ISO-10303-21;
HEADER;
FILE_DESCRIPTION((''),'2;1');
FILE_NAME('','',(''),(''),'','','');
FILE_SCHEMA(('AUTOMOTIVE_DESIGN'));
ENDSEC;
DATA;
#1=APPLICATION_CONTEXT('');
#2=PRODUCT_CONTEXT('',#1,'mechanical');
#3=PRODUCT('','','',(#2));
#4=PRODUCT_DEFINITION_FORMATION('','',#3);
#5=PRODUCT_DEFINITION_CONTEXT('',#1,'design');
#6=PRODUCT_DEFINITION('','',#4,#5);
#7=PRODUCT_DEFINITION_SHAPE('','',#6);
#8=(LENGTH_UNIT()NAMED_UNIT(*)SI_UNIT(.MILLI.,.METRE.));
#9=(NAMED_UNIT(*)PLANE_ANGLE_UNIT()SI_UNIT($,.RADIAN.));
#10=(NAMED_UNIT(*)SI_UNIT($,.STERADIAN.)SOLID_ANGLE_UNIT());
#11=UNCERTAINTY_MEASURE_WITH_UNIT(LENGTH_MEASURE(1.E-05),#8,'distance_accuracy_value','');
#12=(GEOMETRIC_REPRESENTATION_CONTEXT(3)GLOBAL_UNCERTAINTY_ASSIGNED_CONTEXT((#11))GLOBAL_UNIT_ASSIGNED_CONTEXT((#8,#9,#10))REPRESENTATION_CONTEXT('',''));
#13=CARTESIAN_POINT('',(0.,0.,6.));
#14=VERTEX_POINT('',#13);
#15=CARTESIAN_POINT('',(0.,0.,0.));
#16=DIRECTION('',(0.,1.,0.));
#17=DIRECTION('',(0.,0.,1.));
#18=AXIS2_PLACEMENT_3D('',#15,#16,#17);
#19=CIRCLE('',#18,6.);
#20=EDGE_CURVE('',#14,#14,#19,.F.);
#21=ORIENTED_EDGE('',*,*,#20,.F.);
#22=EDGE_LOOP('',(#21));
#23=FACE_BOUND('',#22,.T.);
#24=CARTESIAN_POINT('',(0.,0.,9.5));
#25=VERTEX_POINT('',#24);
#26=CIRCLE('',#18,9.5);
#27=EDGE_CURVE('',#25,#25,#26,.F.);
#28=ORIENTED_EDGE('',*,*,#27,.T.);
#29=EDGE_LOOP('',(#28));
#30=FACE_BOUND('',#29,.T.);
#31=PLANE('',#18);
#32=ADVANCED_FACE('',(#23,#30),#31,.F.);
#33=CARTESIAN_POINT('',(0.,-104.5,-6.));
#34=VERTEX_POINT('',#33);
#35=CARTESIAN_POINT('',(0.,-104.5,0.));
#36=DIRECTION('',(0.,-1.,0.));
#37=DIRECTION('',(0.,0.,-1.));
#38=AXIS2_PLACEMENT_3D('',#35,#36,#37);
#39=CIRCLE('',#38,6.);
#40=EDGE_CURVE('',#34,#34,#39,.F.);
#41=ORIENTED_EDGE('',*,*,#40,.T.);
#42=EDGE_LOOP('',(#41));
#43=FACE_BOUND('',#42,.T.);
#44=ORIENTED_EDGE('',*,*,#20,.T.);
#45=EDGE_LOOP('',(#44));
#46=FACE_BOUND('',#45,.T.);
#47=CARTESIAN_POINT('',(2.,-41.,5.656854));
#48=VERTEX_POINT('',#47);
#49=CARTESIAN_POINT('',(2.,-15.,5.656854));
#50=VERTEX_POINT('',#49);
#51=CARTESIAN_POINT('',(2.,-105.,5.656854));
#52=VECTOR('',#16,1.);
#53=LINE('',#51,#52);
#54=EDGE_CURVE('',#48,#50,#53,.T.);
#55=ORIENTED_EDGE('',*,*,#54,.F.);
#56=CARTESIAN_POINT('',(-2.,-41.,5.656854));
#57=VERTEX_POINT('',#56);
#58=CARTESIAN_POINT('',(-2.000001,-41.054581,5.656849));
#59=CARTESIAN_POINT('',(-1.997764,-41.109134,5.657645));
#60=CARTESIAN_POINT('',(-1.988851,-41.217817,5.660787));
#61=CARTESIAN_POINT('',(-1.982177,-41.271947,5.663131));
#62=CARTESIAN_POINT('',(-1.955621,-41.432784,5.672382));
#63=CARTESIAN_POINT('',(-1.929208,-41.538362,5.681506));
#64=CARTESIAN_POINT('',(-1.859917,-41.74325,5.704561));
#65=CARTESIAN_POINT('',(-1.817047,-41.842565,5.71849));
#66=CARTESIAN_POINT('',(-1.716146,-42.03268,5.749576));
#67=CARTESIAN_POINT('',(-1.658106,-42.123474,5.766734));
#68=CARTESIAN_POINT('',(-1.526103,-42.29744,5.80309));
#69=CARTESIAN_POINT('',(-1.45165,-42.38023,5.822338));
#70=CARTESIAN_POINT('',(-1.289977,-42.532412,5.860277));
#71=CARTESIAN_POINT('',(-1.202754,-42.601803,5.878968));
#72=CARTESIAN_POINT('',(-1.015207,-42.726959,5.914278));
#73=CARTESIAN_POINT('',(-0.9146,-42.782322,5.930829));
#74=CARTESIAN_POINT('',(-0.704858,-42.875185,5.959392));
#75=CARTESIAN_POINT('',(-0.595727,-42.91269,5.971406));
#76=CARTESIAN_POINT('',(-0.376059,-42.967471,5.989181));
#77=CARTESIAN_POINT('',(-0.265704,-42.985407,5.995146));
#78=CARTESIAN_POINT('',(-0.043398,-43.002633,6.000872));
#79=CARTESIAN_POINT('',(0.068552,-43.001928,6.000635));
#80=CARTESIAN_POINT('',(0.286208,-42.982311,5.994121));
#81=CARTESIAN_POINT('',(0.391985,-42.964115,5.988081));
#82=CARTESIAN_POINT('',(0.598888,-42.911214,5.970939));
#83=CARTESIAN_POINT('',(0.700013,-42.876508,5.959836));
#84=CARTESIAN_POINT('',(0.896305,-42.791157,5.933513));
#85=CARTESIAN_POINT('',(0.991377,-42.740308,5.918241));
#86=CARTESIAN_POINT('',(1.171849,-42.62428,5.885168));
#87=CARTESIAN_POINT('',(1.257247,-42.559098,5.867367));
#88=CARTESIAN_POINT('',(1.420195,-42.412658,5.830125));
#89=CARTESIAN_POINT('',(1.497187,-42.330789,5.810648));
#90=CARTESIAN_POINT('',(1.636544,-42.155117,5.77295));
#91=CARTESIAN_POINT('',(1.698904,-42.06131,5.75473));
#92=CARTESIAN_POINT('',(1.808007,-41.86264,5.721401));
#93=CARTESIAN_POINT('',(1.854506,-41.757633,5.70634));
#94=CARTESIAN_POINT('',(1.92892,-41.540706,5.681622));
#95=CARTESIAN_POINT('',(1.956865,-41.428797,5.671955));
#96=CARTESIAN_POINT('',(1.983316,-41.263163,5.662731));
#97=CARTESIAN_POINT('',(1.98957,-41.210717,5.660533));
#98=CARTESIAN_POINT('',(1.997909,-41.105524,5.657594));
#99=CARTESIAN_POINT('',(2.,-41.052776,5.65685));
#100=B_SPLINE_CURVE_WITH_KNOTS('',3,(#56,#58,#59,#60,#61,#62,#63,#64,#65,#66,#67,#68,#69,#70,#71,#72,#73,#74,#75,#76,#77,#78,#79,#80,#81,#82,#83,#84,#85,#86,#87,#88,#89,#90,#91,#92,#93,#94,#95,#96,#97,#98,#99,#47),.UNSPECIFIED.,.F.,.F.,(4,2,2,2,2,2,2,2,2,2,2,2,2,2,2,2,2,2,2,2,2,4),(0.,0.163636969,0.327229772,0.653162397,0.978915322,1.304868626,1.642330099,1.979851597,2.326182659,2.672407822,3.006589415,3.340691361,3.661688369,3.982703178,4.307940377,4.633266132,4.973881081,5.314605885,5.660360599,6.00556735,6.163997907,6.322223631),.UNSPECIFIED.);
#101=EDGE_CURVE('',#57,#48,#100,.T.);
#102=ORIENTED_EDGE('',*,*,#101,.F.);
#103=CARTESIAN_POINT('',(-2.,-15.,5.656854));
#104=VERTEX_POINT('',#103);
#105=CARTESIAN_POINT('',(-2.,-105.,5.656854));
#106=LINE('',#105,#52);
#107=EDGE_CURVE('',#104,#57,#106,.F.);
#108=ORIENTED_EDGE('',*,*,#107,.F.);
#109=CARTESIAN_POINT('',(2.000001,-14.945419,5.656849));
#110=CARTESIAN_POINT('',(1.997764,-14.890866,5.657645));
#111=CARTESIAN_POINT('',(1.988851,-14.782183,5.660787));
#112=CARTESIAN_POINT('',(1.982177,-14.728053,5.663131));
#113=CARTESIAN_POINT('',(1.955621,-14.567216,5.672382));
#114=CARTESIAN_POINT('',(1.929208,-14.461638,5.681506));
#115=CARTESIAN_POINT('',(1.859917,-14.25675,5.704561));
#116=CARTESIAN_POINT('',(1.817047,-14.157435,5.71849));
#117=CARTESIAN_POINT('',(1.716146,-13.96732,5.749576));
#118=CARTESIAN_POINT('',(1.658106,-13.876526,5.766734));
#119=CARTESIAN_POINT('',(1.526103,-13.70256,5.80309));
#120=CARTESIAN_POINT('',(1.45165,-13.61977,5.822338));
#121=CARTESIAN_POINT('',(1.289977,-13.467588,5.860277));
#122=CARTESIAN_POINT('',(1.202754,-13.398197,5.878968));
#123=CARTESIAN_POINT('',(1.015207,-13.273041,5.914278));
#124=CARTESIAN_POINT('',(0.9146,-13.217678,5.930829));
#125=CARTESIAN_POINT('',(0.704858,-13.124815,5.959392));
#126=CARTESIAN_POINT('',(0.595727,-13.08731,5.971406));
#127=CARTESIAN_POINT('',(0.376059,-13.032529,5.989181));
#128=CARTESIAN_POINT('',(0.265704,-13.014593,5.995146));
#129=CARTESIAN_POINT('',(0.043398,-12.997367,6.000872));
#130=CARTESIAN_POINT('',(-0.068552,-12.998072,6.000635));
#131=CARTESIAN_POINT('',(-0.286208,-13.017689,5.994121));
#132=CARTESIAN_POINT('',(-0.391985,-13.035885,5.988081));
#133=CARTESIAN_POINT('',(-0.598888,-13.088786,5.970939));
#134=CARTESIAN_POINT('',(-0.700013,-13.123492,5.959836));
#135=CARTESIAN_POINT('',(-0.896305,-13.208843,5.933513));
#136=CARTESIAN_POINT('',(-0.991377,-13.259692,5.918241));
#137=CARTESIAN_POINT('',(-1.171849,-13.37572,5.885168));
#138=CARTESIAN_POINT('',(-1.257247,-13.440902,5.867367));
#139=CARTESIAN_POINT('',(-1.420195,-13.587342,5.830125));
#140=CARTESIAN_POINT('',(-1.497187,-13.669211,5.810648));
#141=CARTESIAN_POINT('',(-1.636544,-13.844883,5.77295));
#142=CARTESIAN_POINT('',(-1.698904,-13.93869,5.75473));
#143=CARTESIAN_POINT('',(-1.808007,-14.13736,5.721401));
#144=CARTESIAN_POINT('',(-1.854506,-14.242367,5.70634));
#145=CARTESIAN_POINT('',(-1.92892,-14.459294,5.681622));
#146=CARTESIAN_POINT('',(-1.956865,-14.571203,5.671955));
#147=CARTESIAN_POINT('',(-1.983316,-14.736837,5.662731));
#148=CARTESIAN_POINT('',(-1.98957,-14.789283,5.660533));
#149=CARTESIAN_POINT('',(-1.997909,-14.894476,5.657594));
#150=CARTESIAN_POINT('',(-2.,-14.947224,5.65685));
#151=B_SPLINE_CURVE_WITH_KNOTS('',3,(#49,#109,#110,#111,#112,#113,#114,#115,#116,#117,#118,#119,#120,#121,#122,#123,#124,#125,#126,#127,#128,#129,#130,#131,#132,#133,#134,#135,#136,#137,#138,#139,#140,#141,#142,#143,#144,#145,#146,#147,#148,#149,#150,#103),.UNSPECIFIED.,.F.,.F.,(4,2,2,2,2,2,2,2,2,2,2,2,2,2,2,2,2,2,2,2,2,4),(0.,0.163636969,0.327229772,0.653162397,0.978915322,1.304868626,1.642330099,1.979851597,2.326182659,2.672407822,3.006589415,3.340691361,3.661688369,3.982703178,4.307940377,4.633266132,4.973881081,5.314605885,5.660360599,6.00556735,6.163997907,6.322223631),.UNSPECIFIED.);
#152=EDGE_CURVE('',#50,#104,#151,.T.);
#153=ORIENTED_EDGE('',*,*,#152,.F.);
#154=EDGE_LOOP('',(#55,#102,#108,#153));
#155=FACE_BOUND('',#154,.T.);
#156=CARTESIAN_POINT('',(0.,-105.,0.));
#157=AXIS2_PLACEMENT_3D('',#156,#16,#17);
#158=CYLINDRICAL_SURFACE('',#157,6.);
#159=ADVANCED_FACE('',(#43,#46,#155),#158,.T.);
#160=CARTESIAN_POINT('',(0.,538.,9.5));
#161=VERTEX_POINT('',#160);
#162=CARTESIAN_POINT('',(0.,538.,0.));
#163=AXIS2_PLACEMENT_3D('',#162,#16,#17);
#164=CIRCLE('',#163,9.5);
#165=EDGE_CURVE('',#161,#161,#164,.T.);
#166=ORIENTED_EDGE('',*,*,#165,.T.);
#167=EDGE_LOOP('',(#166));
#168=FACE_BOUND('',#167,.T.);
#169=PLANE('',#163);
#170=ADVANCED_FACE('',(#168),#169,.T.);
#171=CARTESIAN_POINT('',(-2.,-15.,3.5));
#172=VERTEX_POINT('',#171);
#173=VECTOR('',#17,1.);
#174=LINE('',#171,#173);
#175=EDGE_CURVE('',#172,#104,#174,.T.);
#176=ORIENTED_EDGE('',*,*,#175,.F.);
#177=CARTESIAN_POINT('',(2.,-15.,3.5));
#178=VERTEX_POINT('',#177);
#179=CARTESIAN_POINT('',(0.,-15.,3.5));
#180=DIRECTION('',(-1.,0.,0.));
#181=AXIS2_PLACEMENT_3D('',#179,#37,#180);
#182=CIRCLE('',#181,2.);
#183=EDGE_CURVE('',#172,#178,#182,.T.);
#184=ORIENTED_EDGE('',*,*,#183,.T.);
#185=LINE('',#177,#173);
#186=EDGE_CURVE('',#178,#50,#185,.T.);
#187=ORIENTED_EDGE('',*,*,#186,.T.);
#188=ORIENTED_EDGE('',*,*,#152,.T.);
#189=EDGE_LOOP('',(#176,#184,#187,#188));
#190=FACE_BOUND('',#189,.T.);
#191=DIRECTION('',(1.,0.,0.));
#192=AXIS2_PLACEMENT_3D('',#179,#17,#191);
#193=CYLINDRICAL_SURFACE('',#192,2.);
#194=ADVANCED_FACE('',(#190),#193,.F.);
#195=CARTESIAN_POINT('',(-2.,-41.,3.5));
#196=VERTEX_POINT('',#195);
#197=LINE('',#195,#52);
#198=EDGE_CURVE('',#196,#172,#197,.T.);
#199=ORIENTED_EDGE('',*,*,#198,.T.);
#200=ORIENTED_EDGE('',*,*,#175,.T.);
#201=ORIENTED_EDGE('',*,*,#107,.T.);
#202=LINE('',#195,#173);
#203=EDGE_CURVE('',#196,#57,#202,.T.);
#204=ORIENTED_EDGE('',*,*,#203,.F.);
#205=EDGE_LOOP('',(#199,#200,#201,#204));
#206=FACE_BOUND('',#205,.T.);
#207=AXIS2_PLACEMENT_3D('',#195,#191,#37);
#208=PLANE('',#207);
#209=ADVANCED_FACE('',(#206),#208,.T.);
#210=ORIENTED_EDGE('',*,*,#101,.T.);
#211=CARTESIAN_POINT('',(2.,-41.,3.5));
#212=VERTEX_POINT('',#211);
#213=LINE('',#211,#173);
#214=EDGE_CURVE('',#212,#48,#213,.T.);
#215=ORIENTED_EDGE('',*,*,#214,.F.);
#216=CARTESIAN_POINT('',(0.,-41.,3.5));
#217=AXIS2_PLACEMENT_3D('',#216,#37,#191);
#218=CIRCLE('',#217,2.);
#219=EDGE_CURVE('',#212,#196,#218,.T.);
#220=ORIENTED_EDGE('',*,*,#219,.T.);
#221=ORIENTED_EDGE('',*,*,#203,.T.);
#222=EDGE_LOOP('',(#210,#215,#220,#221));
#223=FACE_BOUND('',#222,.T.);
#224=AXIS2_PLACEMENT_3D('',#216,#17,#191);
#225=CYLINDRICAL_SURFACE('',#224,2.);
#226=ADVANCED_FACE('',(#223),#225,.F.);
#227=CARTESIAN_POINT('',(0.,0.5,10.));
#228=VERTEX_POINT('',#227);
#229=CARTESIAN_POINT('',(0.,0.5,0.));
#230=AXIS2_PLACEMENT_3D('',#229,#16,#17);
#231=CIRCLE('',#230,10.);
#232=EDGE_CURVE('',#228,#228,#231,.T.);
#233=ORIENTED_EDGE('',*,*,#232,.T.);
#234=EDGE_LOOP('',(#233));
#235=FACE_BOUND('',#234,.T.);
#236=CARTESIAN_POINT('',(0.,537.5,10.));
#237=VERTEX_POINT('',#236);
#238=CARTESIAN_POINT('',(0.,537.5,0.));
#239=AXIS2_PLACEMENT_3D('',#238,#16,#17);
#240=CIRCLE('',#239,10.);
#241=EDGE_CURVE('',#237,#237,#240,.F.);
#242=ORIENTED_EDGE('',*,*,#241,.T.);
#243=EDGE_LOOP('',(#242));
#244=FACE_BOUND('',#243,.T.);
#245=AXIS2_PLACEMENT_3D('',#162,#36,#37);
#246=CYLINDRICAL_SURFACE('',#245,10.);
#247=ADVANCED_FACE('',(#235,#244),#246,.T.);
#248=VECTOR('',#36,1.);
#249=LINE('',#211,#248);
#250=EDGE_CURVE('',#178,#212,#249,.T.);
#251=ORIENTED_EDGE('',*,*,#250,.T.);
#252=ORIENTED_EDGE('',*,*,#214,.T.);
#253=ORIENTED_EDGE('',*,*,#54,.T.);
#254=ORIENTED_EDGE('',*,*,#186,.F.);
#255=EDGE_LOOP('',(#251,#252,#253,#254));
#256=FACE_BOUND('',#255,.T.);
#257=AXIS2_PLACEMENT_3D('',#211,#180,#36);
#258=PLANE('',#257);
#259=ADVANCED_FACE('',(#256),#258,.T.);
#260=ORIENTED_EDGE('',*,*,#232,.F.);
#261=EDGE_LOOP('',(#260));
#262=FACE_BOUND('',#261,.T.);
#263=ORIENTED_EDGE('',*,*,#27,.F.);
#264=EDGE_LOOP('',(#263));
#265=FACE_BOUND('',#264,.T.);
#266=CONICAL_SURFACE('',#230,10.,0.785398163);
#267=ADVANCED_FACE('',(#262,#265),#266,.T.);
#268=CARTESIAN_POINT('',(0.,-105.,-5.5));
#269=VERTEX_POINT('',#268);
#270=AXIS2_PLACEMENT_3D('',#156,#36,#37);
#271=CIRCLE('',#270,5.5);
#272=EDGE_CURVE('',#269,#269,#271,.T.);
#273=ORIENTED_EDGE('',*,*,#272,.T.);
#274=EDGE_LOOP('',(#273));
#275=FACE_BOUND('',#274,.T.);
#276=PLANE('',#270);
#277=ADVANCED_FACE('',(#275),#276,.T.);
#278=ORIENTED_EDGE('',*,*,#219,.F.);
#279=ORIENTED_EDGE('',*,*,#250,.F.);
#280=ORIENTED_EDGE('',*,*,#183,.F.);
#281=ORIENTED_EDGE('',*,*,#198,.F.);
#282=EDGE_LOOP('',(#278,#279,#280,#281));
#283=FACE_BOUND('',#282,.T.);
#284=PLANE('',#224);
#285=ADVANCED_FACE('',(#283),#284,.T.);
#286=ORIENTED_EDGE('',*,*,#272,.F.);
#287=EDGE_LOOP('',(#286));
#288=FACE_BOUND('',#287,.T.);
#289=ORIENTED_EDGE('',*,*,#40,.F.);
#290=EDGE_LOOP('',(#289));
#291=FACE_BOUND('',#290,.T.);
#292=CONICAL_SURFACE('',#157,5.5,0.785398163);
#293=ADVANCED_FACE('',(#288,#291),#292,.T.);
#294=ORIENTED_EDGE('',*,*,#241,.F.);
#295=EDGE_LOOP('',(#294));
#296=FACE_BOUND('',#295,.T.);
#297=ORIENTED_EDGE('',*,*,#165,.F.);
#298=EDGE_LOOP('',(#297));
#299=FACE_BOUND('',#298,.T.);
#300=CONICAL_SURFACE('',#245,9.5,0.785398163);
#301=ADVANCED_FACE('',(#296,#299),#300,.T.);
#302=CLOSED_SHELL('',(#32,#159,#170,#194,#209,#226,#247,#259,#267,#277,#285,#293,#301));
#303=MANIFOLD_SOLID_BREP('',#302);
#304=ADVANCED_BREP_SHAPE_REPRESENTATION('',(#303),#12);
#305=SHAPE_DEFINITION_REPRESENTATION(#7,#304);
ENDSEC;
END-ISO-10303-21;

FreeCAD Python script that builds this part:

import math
import FreeCAD as App
import Part
import Sketcher

V = App.Vector


def edges_at(feature, points):
    """Names of the edges that pass closest to the given points."""
    edges = feature.Shape.Edges
    near = lambda p: min(range(len(edges)), key=lambda i: edges[i].distToShape(Part.Vertex(*p))[0])
    return sorted({f"Edge{near(p) + 1}" for p in points})

doc = App.newDocument("Part")
params = doc.addObject("Spreadsheet::Sheet", "Params")
for row, (alias, value) in enumerate([
    ("sketch1_diameter", "20 mm"),
    ("pad1_length", "538 mm"),
    ("sketch2_diameter", "12 mm"),
    ("pad2_length", "105 mm"),
    ("chamfer_size", "0.5 mm"),
    ("sketch3_radius", "2 mm"),
    ("sketch3_height", "26 mm"),
    ("pocket1_length", "2.5 mm"),
], start=1):
    params.set(f"A{row}", alias)
    params.set(f"B{row}", "=" + value)
    params.setAlias(f"B{row}", alias)

body = doc.addObject("PartDesign::Body", "Body")

# Sketch on XZ plane
sketch1 = body.newObject("Sketcher::SketchObject", "Sketch")
sketch1.AttachmentSupport = (doc.getObject("XZ_Plane"), [""])
sketch1.MapMode = "FlatFace"
sketch1.addGeometry(Part.Circle(V(0, 0, 0), V(0, 0, 1), 10), False)
sketch1.addConstraint([
    Sketcher.Constraint("Coincident", 0, 3, -1, 1),
    Sketcher.Constraint("Diameter", 0, 20.0),
])
sketch1.setExpression("Constraints[1]", "Params.sketch1_diameter")
pad1 = body.newObject("PartDesign::Pad", "Pad")
pad1.Profile = sketch1
pad1.setExpression("Length", "Params.pad1_length")
pad1.Reversed = True

# Sketch on XZ plane
sketch2 = body.newObject("Sketcher::SketchObject", "Sketch001")
sketch2.AttachmentSupport = (doc.getObject("XZ_Plane"), [""])
sketch2.MapMode = "FlatFace"
sketch2.addGeometry(Part.Circle(V(0, 0, 0), V(0, 0, 1), 6), False)
sketch2.addConstraint([
    Sketcher.Constraint("Coincident", 0, 3, -1, 1),
    Sketcher.Constraint("Diameter", 0, 12.0),
])
sketch2.setExpression("Constraints[1]", "Params.sketch2_diameter")
pad2 = body.newObject("PartDesign::Pad", "Pad001")
pad2.Profile = sketch2
pad2.setExpression("Length", "Params.pad2_length")
doc.recompute()

chamfer = body.newObject("PartDesign::Chamfer", "Chamfer")
chamfer.Base = (pad2, edges_at(pad2, [(0, 0, -10), (0, 538, -10), (0, -105, -6)]))
chamfer.setExpression("Size", "Params.chamfer_size")

# Sketch on XY plane
sketch3 = body.newObject("Sketcher::SketchObject", "Sketch002")
sketch3.AttachmentSupport = (doc.getObject("XY_Plane"), [""])
sketch3.MapMode = "FlatFace"
sketch3.AttachmentOffset = App.Placement(V(0, 0, 6), App.Rotation())
sketch3.addGeometry([
    Part.LineSegment(V(-2, -41, 0), V(-2, -15, 0)),
    Part.ArcOfCircle(Part.Circle(V(0, -15, 0), V(0, 0, 1), 2), math.radians(0), math.radians(180)),
    Part.LineSegment(V(2, -15, 0), V(2, -41, 0)),
    Part.ArcOfCircle(Part.Circle(V(0, -41, 0), V(0, 0, 1), 2), math.radians(180), math.radians(360)),
], False)
sketch3.addConstraint([
    Sketcher.Constraint("Tangent", 0, 2, 1, 2),
    Sketcher.Constraint("Tangent", 1, 1, 2, 1),
    Sketcher.Constraint("Tangent", 2, 2, 3, 2),
    Sketcher.Constraint("Tangent", 3, 1, 0, 1),
    Sketcher.Constraint("Vertical", 0),
    Sketcher.Constraint("Vertical", 2),
    Sketcher.Constraint("PointOnObject", 1, 3, -2),
    Sketcher.Constraint("Radius", 1, 2.0),
    Sketcher.Constraint("DistanceY", 0, 1, 0, 2, 26.0),
    Sketcher.Constraint("DistanceY", 1, 3, -1, 1, 15.0),
])
sketch3.setExpression("Constraints[7]", "Params.sketch3_radius")
sketch3.setExpression("Constraints[8]", "Params.sketch3_height")
pocket1 = body.newObject("PartDesign::Pocket", "Pocket")
pocket1.Profile = sketch3
pocket1.setExpression("Length", "Params.pocket1_length")

doc.recompute()
